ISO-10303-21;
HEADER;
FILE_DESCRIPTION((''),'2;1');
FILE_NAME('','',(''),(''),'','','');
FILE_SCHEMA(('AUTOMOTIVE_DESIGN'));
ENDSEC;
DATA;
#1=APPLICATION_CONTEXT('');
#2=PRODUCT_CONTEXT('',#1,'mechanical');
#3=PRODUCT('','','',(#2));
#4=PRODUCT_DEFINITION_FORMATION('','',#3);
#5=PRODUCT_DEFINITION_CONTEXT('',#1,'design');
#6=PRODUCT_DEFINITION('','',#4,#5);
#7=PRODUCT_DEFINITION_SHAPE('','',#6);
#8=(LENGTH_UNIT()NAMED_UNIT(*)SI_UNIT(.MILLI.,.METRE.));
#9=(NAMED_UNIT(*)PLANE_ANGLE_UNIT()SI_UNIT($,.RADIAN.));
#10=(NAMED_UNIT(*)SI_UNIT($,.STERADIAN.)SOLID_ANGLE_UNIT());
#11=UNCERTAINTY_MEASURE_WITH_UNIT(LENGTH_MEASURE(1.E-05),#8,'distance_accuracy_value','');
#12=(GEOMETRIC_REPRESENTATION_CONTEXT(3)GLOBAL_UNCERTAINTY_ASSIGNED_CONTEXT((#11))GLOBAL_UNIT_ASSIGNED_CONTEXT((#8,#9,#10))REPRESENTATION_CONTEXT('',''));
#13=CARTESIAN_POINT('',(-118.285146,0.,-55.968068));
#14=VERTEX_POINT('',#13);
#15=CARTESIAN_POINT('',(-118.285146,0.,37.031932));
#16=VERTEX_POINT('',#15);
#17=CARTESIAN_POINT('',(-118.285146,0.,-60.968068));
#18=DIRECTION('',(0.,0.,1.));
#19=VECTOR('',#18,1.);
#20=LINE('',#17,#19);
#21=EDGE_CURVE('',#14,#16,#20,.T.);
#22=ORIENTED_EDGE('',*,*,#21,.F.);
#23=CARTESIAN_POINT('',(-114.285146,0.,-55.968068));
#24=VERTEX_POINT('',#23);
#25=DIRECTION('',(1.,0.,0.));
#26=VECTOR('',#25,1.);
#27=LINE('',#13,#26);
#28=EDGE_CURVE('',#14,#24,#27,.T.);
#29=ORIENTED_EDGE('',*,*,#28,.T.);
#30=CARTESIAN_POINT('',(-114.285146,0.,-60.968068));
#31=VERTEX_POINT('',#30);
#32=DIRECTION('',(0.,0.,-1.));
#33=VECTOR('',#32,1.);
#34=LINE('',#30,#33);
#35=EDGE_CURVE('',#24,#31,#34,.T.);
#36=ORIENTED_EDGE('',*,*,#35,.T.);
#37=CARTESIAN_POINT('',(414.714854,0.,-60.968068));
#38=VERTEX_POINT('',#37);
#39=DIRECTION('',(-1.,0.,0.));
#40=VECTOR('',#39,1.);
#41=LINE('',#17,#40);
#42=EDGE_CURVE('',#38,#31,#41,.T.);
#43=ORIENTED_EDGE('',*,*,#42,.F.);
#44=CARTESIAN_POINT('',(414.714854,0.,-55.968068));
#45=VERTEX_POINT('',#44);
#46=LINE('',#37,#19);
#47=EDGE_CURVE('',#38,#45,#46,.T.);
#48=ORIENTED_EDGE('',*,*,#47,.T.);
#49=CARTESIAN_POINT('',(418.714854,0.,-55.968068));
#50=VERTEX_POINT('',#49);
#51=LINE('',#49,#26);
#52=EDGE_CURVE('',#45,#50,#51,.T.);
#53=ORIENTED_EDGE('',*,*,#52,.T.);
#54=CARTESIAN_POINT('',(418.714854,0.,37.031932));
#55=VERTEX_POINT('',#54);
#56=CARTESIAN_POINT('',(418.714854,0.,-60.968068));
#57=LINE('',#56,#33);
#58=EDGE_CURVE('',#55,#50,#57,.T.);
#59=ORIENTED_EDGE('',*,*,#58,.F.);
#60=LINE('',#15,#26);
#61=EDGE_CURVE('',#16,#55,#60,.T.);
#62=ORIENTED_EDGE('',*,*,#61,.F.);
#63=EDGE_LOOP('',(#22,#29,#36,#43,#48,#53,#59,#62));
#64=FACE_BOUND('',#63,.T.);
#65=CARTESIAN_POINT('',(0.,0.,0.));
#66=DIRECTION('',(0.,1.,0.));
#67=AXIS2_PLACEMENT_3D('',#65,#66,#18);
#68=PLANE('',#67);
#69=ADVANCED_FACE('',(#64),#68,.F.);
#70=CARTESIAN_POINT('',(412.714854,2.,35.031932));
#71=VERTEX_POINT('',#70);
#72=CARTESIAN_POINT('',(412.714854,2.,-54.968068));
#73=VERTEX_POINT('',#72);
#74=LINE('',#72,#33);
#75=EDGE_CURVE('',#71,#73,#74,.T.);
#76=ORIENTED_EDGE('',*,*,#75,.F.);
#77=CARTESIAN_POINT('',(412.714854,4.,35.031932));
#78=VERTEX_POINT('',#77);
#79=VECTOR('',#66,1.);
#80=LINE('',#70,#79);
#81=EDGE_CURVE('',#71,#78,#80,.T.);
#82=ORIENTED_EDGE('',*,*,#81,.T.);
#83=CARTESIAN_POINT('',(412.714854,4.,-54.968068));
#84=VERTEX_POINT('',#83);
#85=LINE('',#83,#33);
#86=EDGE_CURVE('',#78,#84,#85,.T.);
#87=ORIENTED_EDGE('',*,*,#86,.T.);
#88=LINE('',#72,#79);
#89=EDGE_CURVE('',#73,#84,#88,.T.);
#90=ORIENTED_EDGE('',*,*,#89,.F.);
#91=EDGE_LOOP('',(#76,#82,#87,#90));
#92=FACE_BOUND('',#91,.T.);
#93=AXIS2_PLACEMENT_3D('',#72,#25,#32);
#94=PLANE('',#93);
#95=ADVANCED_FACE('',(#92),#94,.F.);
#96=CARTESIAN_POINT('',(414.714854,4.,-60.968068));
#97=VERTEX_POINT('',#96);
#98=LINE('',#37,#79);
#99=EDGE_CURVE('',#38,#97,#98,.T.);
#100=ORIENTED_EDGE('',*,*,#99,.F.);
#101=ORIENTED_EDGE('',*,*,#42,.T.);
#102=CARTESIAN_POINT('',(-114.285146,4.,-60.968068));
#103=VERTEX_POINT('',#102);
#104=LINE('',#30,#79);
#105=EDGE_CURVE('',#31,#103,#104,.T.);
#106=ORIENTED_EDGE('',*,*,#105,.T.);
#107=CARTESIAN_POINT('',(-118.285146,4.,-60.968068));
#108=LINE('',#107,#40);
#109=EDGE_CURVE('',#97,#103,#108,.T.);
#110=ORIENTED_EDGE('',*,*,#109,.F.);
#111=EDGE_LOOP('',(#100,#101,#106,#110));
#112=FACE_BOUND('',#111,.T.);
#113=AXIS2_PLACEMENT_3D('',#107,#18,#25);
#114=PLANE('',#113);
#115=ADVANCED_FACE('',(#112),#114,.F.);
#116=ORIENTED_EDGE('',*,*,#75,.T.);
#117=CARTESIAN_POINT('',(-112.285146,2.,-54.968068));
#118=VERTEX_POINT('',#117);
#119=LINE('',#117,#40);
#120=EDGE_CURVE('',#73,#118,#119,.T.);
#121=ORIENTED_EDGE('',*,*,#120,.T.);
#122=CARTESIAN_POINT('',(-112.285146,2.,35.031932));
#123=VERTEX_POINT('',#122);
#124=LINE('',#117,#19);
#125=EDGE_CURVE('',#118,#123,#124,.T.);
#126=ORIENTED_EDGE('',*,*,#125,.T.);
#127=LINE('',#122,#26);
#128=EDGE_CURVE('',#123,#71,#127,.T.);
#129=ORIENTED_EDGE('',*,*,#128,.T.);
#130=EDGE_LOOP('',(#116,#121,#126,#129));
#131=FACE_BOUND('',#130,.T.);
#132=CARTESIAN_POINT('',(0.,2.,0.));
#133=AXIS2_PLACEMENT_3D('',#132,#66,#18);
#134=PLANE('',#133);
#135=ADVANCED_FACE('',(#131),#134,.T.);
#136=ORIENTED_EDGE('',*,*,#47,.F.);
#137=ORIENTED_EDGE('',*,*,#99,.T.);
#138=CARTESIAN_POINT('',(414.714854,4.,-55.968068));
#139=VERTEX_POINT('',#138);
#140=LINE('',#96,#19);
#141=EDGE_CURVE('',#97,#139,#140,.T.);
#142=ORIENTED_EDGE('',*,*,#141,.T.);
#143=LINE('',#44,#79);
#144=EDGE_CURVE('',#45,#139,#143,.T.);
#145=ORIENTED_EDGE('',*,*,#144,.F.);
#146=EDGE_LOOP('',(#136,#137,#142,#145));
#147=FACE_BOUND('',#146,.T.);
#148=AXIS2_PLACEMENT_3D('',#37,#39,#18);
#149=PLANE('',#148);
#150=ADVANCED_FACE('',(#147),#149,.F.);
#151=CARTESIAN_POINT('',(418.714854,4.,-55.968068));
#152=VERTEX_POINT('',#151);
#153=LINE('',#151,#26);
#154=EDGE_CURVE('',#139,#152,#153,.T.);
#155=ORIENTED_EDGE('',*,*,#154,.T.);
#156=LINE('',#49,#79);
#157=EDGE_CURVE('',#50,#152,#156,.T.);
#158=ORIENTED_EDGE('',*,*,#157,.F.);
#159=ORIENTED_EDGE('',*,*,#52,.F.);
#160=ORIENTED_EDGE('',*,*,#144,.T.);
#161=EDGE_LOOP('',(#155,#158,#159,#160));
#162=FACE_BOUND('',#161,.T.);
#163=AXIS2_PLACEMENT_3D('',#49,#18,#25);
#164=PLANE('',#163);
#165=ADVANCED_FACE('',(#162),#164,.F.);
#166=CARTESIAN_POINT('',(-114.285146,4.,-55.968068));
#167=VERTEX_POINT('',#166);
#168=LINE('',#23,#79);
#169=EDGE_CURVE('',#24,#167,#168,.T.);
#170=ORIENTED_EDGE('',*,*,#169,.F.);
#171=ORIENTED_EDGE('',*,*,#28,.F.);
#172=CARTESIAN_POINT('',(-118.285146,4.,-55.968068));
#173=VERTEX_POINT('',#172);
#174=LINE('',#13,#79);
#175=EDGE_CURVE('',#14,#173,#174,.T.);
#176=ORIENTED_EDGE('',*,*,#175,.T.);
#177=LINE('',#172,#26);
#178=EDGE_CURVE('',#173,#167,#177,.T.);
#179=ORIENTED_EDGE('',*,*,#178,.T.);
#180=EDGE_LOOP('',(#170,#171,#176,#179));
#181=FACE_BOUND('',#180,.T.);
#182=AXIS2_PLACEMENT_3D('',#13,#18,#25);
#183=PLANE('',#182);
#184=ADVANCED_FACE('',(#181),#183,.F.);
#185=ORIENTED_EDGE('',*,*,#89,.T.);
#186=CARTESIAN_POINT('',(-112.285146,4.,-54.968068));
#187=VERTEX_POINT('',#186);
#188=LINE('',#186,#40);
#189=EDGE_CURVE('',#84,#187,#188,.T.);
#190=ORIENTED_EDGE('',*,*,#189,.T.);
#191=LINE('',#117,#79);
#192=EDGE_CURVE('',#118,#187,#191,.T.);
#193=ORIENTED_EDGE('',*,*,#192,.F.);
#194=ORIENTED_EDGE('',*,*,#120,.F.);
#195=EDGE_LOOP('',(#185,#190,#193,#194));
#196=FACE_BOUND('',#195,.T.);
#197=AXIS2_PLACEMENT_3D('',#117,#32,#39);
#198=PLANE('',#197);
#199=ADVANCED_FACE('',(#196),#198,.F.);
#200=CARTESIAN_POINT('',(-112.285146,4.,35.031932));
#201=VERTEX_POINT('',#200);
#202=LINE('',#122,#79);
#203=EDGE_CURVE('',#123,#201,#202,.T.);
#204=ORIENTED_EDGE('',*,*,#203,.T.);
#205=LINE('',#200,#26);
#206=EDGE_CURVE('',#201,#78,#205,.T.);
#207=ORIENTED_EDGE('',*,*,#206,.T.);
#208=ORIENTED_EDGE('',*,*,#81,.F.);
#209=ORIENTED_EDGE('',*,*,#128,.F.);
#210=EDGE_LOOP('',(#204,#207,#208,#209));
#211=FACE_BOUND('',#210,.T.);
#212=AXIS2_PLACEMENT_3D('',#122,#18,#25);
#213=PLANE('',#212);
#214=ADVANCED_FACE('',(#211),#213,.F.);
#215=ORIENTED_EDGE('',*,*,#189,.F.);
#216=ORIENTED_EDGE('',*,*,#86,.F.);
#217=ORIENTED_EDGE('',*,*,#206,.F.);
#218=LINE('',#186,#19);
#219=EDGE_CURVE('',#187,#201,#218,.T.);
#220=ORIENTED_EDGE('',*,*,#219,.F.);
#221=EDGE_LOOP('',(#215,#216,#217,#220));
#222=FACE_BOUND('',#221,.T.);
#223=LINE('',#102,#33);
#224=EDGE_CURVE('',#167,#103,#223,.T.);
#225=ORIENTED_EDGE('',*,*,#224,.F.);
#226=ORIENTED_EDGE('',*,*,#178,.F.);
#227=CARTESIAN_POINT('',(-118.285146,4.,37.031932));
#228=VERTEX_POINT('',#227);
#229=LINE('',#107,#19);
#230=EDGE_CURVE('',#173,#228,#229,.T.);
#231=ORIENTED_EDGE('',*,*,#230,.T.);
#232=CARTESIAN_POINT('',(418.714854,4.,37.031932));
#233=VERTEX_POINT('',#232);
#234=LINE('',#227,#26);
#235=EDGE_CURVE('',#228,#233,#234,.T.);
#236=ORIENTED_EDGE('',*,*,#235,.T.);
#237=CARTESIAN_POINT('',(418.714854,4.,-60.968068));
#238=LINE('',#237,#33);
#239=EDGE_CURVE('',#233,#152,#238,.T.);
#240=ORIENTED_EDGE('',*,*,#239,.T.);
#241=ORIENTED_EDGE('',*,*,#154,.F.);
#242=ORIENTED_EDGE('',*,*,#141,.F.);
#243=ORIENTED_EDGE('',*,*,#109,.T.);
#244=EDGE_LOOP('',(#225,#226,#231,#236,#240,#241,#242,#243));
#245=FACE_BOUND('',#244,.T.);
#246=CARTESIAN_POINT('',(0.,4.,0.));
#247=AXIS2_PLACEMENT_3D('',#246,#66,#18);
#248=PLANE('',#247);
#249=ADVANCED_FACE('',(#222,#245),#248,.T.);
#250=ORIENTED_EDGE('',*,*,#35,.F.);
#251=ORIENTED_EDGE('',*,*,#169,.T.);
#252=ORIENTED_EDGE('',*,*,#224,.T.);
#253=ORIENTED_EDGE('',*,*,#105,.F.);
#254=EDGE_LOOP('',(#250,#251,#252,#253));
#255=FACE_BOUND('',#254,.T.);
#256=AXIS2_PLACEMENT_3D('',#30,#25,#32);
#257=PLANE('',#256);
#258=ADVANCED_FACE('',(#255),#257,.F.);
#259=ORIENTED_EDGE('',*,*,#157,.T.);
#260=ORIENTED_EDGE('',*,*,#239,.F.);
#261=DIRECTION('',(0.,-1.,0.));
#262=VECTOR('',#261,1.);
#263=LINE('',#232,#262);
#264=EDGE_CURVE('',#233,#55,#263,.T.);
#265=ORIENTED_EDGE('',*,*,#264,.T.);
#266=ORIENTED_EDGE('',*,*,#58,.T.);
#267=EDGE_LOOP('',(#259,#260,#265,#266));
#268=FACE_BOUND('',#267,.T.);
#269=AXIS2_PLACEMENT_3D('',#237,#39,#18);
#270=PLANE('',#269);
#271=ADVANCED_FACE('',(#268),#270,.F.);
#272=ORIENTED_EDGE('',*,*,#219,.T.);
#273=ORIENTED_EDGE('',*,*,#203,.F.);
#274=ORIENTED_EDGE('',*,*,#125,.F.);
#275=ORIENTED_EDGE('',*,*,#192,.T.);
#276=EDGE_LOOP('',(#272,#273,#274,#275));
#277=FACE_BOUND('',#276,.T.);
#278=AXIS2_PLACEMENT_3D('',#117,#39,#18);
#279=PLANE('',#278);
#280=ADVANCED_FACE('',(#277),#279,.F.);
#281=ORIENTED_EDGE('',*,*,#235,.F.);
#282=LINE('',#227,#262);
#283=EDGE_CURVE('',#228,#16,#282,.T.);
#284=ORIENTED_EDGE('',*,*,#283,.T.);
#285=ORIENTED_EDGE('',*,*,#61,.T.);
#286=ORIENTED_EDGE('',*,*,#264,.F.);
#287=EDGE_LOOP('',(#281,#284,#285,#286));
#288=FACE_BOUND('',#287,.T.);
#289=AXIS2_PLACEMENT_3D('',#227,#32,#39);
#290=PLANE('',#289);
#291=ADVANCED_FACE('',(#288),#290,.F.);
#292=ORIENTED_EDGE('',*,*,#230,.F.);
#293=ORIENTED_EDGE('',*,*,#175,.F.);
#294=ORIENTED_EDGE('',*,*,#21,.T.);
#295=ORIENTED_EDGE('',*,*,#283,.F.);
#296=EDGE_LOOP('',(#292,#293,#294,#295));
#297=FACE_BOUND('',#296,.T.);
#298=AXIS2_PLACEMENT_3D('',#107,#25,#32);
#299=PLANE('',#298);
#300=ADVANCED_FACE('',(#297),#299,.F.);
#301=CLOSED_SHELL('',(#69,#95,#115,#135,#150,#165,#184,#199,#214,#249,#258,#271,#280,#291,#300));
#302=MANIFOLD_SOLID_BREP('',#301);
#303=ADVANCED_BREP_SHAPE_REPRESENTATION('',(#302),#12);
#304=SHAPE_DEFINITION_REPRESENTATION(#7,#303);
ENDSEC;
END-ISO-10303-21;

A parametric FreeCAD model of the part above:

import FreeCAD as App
import Part
import Sketcher
Q = App.Units.Quantity


def add_polygon(sketch, points):
    """Adds a closed chain of lines whose ends are joined by coincident constraints."""
    first, n = sketch.GeometryCount, len(points)
    for a, b in zip(points, points[1:] + points[:1]):
        sketch.addGeometry(Part.LineSegment(App.Vector(*a, 0), App.Vector(*b, 0)), False)
    for i in range(n):
        sketch.addConstraint(Sketcher.Constraint("Coincident", first + i, 2, first + (i + 1) % n, 1))

doc = App.newDocument("Part")
body = doc.addObject("PartDesign::Body", "Body")

sketch1 = body.newObject("Sketcher::SketchObject", "Sketch")
sketch1.AttachmentSupport = (doc.getObject("XZ_Plane"), [""])
sketch1.MapMode = "FlatFace"
add_polygon(sketch1, [(-118.285146, -60.968068), (-118.285146, 37.031932), (418.714854, 37.031932), (418.714854, -60.968068)])
sketch1.addConstraint([
    Sketcher.Constraint("Vertical", 0),
    Sketcher.Constraint("Horizontal", 1),
    Sketcher.Constraint("Vertical", 2),
    Sketcher.Constraint("Horizontal", 3),
    Sketcher.Constraint("DistanceX", 1, 1, 1, 2, Q("537 mm")),
    Sketcher.Constraint("DistanceY", 0, 1, 0, 2, Q("98 mm")),
    Sketcher.Constraint("DistanceX", 0, 2, -1, 1, Q("118.285146 mm")),
    Sketcher.Constraint("DistanceY", -1, 1, 0, 2, Q("37.031932 mm")),
])
pad1 = body.newObject("PartDesign::Pad", "Pad")
pad1.Profile = sketch1
pad1.Length = 4
pad1.Reversed = True

sketch2 = body.newObject("Sketcher::SketchObject", "Sketch001")
sketch2.AttachmentSupport = (doc.getObject("XZ_Plane"), [""])
sketch2.MapMode = "FlatFace"
sketch2.AttachmentOffset = App.Placement(App.Vector(0, 0, -4), App.Rotation())
add_polygon(sketch2, [(-112.285146, -54.968068), (-112.285146, 35.031932), (412.714854, 35.031932), (412.714854, -54.968068)])
sketch2.addConstraint([
    Sketcher.Constraint("Vertical", 0),
    Sketcher.Constraint("Horizontal", 1),
    Sketcher.Constraint("Vertical", 2),
    Sketcher.Constraint("Horizontal", 3),
    Sketcher.Constraint("DistanceX", 1, 1, 1, 2, Q("525 mm")),
    Sketcher.Constraint("DistanceY", 0, 1, 0, 2, Q("90 mm")),
    Sketcher.Constraint("DistanceX", 0, 2, -1, 1, Q("112.285146 mm")),
    Sketcher.Constraint("DistanceY", -1, 1, 0, 2, Q("35.031932 mm")),
])
pocket1 = body.newObject("PartDesign::Pocket", "Pocket")
pocket1.Profile = sketch2
pocket1.Length = 2
pocket1.Reversed = True

sketch3 = body.newObject("Sketcher::SketchObject", "Sketch002")
sketch3.AttachmentSupport = (doc.getObject("XZ_Plane"), [""])
sketch3.MapMode = "FlatFace"
sketch3.AttachmentOffset = App.Placement(App.Vector(0, 0, -4), App.Rotation())
add_polygon(sketch3, [(-118.285146, -60.968068), (-118.285146, -55.968068), (-114.285146, -55.968068), (-114.285146, -60.968068)])
add_polygon(sketch3, [(414.714854, -60.968068), (414.714854, -55.968068), (418.714854, -55.968068), (418.714854, -60.968068)])
sketch3.addConstraint([
    Sketcher.Constraint("Vertical", 0),
    Sketcher.Constraint("Horizontal", 1),
    Sketcher.Constraint("Vertical", 2),
    Sketcher.Constraint("Horizontal", 3),
    Sketcher.Constraint("Vertical", 4),
    Sketcher.Constraint("Horizontal", 5),
    Sketcher.Constraint("Vertical", 6),
    Sketcher.Constraint("Horizontal", 7),
    Sketcher.Constraint("Horizontal", 1, 2, 4, 2),
    Sketcher.Constraint("Horizontal", 3, 2, 6, 2),
    Sketcher.Constraint("Equal", 3, 5),
    Sketcher.Constraint("DistanceX", 1, 1, 1, 2, Q("4 mm")),
    Sketcher.Constraint("DistanceY", 0, 1, 0, 2, Q("5 mm")),
    Sketcher.Constraint("DistanceX", 1, 2, 4, 2, Q("529 mm")),
    Sketcher.Constraint("DistanceX", 0, 2, -1, 1, Q("118.285146 mm")),
    Sketcher.Constraint("DistanceY", 0, 2, -1, 1, Q("55.968068 mm")),
])
pocket2 = body.newObject("PartDesign::Pocket", "Pocket001")
pocket2.Profile = sketch3
pocket2.Length = 4
pocket2.Reversed = True

doc.recompute()
